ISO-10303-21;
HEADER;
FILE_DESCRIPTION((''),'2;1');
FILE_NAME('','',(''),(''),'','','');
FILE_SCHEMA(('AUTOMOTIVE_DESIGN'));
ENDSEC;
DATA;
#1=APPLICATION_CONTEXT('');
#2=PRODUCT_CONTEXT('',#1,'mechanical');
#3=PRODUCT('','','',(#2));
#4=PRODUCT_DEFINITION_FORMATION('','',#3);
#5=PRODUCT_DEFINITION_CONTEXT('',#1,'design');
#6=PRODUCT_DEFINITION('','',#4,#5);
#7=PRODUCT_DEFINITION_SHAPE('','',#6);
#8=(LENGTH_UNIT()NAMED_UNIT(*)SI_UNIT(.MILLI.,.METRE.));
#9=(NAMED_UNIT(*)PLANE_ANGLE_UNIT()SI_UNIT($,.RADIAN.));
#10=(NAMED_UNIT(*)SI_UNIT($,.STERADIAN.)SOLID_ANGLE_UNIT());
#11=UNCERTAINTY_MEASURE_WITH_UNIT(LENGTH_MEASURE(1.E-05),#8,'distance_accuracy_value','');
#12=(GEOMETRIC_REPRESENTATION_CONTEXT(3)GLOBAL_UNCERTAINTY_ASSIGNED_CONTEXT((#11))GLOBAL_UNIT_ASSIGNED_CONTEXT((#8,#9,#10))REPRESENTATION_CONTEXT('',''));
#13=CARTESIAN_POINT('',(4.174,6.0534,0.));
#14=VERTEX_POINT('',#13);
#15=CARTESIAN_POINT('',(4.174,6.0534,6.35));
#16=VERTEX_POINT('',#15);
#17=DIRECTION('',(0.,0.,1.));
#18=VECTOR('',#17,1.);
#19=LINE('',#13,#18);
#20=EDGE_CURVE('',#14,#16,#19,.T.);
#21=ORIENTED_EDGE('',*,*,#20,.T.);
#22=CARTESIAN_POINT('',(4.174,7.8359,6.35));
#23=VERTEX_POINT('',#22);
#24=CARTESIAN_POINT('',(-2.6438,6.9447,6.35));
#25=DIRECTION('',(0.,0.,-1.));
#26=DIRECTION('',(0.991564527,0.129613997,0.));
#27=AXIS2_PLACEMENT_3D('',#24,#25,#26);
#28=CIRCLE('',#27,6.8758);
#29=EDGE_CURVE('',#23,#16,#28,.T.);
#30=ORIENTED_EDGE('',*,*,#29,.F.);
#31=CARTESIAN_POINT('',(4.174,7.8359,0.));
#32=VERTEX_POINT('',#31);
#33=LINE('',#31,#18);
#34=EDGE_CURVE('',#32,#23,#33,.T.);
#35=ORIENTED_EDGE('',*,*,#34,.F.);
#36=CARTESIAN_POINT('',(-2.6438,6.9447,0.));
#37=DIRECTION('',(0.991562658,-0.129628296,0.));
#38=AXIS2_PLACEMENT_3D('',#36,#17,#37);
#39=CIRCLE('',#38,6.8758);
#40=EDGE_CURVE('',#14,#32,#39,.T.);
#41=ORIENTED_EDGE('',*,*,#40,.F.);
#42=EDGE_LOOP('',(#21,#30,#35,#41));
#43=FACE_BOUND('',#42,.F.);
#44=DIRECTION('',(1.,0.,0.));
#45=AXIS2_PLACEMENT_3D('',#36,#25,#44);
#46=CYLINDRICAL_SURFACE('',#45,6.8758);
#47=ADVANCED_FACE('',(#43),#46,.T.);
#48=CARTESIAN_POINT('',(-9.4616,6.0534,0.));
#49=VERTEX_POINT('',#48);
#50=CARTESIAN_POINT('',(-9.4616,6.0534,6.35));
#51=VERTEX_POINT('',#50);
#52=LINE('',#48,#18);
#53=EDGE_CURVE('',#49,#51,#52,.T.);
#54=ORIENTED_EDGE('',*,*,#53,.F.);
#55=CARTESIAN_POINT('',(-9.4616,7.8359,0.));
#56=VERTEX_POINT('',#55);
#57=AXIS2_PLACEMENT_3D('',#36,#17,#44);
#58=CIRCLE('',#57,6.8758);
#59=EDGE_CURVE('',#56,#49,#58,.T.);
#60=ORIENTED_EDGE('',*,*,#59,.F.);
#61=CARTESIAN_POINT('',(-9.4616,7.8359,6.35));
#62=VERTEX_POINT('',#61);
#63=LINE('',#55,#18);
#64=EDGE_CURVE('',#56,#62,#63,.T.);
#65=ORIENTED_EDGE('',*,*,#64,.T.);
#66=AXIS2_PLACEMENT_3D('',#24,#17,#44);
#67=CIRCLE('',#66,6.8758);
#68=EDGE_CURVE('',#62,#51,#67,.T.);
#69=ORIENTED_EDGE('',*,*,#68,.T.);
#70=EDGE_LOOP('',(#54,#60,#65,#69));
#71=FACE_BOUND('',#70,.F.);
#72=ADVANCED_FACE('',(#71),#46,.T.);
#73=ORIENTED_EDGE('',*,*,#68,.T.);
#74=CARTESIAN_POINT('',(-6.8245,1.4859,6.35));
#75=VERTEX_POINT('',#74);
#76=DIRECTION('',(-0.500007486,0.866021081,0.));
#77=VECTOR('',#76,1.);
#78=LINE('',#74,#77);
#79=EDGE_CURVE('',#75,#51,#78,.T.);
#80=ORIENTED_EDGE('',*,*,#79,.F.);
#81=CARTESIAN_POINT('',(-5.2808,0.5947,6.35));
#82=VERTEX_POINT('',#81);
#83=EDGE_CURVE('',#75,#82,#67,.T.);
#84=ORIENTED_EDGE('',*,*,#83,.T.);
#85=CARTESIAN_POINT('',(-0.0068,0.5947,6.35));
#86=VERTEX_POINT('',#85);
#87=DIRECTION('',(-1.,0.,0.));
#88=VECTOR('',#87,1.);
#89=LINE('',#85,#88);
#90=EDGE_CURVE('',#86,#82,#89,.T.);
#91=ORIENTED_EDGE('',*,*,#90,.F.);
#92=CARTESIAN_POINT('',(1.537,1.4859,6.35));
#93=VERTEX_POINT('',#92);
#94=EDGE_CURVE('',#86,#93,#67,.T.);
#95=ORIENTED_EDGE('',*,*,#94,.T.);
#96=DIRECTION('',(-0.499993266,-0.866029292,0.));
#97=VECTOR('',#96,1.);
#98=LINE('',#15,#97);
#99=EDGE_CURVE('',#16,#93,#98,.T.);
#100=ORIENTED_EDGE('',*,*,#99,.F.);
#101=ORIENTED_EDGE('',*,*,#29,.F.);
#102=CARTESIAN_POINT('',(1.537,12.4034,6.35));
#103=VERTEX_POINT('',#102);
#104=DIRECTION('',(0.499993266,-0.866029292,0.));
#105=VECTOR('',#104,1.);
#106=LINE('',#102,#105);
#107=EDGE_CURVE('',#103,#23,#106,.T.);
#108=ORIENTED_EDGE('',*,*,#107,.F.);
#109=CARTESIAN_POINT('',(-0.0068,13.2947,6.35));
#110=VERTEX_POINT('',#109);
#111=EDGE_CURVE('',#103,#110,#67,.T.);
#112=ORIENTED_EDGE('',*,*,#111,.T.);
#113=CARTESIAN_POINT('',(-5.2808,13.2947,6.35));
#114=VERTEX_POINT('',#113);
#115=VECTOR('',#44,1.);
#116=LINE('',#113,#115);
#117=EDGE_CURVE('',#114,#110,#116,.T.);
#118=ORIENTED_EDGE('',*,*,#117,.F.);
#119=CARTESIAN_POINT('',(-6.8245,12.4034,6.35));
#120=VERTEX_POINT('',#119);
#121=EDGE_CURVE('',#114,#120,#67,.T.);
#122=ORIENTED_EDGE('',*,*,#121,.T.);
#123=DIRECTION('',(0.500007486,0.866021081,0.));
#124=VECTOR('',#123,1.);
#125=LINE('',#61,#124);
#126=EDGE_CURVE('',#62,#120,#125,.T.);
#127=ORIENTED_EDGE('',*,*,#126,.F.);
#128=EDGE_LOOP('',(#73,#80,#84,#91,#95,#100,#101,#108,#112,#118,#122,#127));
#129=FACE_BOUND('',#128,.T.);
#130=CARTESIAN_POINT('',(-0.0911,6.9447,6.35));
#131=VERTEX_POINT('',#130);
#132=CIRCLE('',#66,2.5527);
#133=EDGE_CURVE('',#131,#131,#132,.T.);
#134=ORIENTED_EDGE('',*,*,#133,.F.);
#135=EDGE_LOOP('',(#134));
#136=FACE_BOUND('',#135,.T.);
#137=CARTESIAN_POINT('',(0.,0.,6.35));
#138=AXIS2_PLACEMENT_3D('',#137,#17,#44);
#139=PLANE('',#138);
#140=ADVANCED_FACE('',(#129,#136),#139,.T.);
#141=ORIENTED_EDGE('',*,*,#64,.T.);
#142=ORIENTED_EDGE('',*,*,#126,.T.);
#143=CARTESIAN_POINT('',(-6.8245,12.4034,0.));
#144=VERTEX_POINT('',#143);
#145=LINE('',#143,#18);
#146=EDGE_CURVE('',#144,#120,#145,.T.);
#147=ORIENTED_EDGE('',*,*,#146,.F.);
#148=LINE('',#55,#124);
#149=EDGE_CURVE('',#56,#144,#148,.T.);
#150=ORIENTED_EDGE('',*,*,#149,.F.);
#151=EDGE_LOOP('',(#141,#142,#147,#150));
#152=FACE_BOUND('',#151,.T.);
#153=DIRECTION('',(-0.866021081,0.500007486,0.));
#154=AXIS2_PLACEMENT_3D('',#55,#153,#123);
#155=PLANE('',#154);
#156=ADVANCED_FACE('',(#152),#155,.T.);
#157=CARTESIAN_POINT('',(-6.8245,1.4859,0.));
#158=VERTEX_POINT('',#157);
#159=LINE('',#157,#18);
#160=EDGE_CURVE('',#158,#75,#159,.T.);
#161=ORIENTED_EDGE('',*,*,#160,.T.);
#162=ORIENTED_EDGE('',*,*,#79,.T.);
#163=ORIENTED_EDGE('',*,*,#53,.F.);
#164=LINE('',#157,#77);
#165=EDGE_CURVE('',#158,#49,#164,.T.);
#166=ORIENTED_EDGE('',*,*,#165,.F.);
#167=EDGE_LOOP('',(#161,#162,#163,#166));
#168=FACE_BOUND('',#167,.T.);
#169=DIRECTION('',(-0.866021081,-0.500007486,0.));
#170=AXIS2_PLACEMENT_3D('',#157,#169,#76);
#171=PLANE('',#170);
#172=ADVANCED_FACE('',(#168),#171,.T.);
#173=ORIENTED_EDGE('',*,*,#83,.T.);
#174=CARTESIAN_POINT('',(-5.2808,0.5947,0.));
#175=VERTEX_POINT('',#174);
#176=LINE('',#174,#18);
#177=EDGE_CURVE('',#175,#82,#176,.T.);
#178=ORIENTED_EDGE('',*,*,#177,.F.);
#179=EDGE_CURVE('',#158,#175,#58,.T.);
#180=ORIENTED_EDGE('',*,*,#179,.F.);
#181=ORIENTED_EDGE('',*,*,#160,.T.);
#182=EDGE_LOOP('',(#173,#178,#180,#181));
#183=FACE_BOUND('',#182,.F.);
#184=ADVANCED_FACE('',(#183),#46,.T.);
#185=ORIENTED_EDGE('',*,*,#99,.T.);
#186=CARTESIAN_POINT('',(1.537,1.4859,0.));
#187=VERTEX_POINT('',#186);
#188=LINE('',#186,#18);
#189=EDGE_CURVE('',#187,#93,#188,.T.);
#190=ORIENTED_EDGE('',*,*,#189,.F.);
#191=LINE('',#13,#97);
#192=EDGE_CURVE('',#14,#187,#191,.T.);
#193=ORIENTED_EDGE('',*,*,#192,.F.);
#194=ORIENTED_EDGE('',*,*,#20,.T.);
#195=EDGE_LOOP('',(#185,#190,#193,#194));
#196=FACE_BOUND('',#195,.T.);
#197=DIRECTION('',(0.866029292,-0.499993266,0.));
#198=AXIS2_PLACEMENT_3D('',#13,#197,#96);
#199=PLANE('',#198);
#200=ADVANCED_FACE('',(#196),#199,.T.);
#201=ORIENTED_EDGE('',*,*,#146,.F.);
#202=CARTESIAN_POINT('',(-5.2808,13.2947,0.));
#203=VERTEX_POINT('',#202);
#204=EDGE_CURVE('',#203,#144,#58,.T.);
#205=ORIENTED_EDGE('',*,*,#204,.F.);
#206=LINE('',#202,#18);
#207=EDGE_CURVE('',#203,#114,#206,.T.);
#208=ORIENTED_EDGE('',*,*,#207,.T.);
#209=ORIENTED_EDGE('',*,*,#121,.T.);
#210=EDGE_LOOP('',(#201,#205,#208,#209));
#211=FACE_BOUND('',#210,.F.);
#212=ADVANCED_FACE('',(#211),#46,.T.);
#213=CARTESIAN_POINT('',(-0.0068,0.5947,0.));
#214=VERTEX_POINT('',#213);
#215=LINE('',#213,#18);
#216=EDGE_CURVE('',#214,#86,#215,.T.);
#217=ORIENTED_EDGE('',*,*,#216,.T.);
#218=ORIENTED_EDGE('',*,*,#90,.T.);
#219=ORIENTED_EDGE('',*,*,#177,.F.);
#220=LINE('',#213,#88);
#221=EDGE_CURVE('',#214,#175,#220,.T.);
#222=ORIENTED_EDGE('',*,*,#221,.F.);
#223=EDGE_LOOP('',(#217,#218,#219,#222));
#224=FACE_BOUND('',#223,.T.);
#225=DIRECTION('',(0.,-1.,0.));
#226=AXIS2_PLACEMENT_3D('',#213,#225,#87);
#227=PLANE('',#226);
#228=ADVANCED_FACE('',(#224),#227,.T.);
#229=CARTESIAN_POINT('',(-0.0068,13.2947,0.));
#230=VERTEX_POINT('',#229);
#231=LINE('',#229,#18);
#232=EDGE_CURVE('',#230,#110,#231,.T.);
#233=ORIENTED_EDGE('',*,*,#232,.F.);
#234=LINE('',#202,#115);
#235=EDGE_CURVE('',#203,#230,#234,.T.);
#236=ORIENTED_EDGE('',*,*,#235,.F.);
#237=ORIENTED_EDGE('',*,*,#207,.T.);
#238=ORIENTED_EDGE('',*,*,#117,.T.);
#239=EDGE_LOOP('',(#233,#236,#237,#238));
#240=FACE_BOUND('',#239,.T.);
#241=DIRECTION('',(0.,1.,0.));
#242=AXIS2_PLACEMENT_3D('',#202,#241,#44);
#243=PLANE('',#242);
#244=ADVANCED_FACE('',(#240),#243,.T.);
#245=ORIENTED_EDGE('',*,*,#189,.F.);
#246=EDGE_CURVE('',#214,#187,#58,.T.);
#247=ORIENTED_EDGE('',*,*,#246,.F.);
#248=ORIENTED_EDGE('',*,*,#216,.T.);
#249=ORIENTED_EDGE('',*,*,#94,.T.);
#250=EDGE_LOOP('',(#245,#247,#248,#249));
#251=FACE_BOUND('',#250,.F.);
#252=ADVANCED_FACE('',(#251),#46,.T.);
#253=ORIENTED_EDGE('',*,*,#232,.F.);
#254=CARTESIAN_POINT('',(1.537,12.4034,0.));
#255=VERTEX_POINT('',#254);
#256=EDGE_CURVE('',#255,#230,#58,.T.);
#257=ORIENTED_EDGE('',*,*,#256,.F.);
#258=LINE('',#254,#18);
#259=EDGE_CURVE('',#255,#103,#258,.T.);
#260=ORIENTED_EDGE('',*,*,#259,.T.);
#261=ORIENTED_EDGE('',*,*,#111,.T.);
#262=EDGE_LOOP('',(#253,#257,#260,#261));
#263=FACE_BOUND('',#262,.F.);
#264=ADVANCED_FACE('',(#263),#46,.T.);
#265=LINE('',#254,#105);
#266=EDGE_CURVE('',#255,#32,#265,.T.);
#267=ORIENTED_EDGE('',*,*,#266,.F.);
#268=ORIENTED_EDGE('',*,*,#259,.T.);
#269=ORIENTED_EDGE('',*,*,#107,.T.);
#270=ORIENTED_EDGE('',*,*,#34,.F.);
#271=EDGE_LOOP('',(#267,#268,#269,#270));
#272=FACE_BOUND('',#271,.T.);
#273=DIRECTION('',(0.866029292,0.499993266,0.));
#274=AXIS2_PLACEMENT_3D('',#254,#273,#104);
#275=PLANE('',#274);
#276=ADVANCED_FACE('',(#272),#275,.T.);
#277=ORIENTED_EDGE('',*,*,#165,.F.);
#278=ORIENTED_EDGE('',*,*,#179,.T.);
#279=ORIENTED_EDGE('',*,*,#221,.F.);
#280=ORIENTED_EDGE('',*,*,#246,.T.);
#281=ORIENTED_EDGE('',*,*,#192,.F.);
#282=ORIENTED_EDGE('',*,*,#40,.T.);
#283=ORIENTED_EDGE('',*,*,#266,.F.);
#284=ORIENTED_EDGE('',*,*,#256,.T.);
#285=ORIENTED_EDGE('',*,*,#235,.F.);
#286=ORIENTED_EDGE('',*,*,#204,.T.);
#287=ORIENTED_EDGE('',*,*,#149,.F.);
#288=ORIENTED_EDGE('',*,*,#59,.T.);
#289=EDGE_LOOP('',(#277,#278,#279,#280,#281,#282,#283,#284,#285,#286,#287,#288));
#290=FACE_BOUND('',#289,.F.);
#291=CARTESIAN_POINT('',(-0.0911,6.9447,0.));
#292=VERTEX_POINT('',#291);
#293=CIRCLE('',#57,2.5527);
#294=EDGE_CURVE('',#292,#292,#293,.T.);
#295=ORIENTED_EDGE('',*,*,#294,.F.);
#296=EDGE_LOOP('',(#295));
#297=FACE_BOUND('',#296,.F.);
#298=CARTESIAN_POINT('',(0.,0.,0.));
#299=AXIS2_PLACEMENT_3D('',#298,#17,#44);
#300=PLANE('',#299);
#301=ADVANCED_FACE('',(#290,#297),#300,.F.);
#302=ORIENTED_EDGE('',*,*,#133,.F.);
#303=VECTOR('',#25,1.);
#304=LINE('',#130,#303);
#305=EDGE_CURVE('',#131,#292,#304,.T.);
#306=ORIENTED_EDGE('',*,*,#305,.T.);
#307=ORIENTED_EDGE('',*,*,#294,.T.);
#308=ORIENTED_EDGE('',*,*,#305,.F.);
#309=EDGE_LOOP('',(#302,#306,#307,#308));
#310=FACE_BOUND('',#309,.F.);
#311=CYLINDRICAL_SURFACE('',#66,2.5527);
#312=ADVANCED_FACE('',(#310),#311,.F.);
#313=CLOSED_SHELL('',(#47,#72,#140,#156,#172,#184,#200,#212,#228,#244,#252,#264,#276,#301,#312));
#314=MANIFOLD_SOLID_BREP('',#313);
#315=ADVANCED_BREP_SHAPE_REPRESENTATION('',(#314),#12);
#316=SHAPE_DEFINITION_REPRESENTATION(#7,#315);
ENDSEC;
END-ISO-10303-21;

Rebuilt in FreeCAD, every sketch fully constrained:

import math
import FreeCAD as App
import Part
import Sketcher
Q = App.Units.Quantity

doc = App.newDocument("Part")
body = doc.addObject("PartDesign::Body", "Body")

sketch1 = body.newObject("Sketcher::SketchObject", "Sketch")
sketch1.AttachmentSupport = (doc.getObject("XY_Plane"), [""])
sketch1.MapMode = "FlatFace"
sketch1.addGeometry([
    Part.ArcOfCircle(Part.Circle(App.Vector(-2.6, 6.9, 0), App.Vector(0, 0, 1), 6.9), math.radians(-7.45), math.radians(7.45)),
    Part.LineSegment(App.Vector(4.2, 7.8, 0), App.Vector(1.5, 12.4, 0)),
    Part.ArcOfCircle(Part.Circle(App.Vector(-2.6, 6.9, 0), App.Vector(0, 0, 1), 6.9), math.radians(52.55), math.radians(67.45)),
    Part.LineSegment(App.Vector(0, 13.3, 0), App.Vector(-5.3, 13.3, 0)),
    Part.ArcOfCircle(Part.Circle(App.Vector(-2.6, 6.9, 0), App.Vector(0, 0, 1), 6.9), math.radians(112.55), math.radians(127.45)),
    Part.LineSegment(App.Vector(-6.8, 12.4, 0), App.Vector(-9.5, 7.8, 0)),
    Part.ArcOfCircle(Part.Circle(App.Vector(-2.6, 6.9, 0), App.Vector(0, 0, 1), 6.9), math.radians(172.55), math.radians(187.45)),
    Part.LineSegment(App.Vector(-9.5, 6.1, 0), App.Vector(-6.8, 1.5, 0)),
    Part.ArcOfCircle(Part.Circle(App.Vector(-2.6, 6.9, 0), App.Vector(0, 0, 1), 6.9), math.radians(-127.45), math.radians(-112.55)),
    Part.LineSegment(App.Vector(-5.3, 0.6, 0), App.Vector(0, 0.6, 0)),
    Part.ArcOfCircle(Part.Circle(App.Vector(-2.6, 6.9, 0), App.Vector(0, 0, 1), 6.9), math.radians(-67.45), math.radians(-52.55)),
    Part.LineSegment(App.Vector(1.5, 1.5, 0), App.Vector(4.2, 6.1, 0)),
], False)
sketch1.addConstraint([
    Sketcher.Constraint("Coincident", 0, 2, 1, 1),
    Sketcher.Constraint("Coincident", 1, 2, 2, 1),
    Sketcher.Constraint("Coincident", 2, 2, 3, 1),
    Sketcher.Constraint("Coincident", 3, 2, 4, 1),
    Sketcher.Constraint("Coincident", 4, 2, 5, 1),
    Sketcher.Constraint("Coincident", 5, 2, 6, 1),
    Sketcher.Constraint("Coincident", 6, 2, 7, 1),
    Sketcher.Constraint("Coincident", 7, 2, 8, 1),
    Sketcher.Constraint("Coincident", 8, 2, 9, 1),
    Sketcher.Constraint("Coincident", 9, 2, 10, 1),
    Sketcher.Constraint("Coincident", 10, 2, 11, 1),
    Sketcher.Constraint("Coincident", 11, 2, 0, 1),
    Sketcher.Constraint("Horizontal", 3),
    Sketcher.Constraint("Horizontal", 9),
    Sketcher.Constraint("Coincident", 2, 3, 0, 3),
    Sketcher.Constraint("Coincident", 4, 3, 0, 3),
    Sketcher.Constraint("Coincident", 6, 3, 0, 3),
    Sketcher.Constraint("Coincident", 8, 3, 0, 3),
    Sketcher.Constraint("Coincident", 10, 3, 0, 3),
    Sketcher.Constraint("Equal", 0, 2),
    Sketcher.Constraint("Equal", 2, 4),
    Sketcher.Constraint("Equal", 4, 6),
    Sketcher.Constraint("Equal", 6, 8),
    Sketcher.Constraint("Equal", 8, 10),
    Sketcher.Constraint("Parallel", 1, 7),
    Sketcher.Constraint("Parallel", 5, 11),
    Sketcher.Constraint("Horizontal", 1, 2, 4, 2),
    Sketcher.Constraint("Horizontal", 0, 2, 5, 2),
    Sketcher.Constraint("Horizontal", 7, 2, 10, 2),
    Sketcher.Constraint("Vertical", 5, 2, 6, 2),
    Sketcher.Constraint("Vertical", 3, 2, 8, 2),
    Sketcher.Constraint("Radius", 0, Q("0.2707 in")),
    Sketcher.Constraint("Angle", 1, Q("119.9996 deg")),
    Sketcher.Constraint("DistanceY", 0, 3, 2, 2, Q("0.25 in")),
    Sketcher.Constraint("DistanceY", 10, 2, 0, 2, Q("0.25 in")),
    Sketcher.Constraint("DistanceY", -1, 1, 0, 2, Q("0.3085 in")),
    Sketcher.Constraint("DistanceX", -1, 1, 1, 2, Q("0.0605 in")),
])
pad1 = body.newObject("PartDesign::Pad", "Pad")
pad1.Profile = sketch1
pad1.Length = Q("0.25 in")

sketch2 = body.newObject("Sketcher::SketchObject", "Sketch001")
sketch2.AttachmentSupport = (doc.getObject("XY_Plane"), [""])
sketch2.MapMode = "FlatFace"
sketch2.AttachmentOffset = App.Placement(App.Vector(0, 0, 0.25 * 25.4), App.Rotation())
sketch2.addGeometry(Part.Circle(App.Vector(-2.6, 6.9, 0), App.Vector(0, 0, 1), 2.6), False)
sketch2.addConstraint([
    Sketcher.Constraint("Diameter", 0, Q("0.201 in")),
    Sketcher.Constraint("DistanceX", 0, 3, -1, 1, 2.6438),
    Sketcher.Constraint("DistanceY", -1, 1, 0, 3, 6.9447),
])
pocket1 = body.newObject("PartDesign::Pocket", "Pocket")
pocket1.Profile = sketch2
pocket1.Length = Q("0.25 in")

doc.recompute()
